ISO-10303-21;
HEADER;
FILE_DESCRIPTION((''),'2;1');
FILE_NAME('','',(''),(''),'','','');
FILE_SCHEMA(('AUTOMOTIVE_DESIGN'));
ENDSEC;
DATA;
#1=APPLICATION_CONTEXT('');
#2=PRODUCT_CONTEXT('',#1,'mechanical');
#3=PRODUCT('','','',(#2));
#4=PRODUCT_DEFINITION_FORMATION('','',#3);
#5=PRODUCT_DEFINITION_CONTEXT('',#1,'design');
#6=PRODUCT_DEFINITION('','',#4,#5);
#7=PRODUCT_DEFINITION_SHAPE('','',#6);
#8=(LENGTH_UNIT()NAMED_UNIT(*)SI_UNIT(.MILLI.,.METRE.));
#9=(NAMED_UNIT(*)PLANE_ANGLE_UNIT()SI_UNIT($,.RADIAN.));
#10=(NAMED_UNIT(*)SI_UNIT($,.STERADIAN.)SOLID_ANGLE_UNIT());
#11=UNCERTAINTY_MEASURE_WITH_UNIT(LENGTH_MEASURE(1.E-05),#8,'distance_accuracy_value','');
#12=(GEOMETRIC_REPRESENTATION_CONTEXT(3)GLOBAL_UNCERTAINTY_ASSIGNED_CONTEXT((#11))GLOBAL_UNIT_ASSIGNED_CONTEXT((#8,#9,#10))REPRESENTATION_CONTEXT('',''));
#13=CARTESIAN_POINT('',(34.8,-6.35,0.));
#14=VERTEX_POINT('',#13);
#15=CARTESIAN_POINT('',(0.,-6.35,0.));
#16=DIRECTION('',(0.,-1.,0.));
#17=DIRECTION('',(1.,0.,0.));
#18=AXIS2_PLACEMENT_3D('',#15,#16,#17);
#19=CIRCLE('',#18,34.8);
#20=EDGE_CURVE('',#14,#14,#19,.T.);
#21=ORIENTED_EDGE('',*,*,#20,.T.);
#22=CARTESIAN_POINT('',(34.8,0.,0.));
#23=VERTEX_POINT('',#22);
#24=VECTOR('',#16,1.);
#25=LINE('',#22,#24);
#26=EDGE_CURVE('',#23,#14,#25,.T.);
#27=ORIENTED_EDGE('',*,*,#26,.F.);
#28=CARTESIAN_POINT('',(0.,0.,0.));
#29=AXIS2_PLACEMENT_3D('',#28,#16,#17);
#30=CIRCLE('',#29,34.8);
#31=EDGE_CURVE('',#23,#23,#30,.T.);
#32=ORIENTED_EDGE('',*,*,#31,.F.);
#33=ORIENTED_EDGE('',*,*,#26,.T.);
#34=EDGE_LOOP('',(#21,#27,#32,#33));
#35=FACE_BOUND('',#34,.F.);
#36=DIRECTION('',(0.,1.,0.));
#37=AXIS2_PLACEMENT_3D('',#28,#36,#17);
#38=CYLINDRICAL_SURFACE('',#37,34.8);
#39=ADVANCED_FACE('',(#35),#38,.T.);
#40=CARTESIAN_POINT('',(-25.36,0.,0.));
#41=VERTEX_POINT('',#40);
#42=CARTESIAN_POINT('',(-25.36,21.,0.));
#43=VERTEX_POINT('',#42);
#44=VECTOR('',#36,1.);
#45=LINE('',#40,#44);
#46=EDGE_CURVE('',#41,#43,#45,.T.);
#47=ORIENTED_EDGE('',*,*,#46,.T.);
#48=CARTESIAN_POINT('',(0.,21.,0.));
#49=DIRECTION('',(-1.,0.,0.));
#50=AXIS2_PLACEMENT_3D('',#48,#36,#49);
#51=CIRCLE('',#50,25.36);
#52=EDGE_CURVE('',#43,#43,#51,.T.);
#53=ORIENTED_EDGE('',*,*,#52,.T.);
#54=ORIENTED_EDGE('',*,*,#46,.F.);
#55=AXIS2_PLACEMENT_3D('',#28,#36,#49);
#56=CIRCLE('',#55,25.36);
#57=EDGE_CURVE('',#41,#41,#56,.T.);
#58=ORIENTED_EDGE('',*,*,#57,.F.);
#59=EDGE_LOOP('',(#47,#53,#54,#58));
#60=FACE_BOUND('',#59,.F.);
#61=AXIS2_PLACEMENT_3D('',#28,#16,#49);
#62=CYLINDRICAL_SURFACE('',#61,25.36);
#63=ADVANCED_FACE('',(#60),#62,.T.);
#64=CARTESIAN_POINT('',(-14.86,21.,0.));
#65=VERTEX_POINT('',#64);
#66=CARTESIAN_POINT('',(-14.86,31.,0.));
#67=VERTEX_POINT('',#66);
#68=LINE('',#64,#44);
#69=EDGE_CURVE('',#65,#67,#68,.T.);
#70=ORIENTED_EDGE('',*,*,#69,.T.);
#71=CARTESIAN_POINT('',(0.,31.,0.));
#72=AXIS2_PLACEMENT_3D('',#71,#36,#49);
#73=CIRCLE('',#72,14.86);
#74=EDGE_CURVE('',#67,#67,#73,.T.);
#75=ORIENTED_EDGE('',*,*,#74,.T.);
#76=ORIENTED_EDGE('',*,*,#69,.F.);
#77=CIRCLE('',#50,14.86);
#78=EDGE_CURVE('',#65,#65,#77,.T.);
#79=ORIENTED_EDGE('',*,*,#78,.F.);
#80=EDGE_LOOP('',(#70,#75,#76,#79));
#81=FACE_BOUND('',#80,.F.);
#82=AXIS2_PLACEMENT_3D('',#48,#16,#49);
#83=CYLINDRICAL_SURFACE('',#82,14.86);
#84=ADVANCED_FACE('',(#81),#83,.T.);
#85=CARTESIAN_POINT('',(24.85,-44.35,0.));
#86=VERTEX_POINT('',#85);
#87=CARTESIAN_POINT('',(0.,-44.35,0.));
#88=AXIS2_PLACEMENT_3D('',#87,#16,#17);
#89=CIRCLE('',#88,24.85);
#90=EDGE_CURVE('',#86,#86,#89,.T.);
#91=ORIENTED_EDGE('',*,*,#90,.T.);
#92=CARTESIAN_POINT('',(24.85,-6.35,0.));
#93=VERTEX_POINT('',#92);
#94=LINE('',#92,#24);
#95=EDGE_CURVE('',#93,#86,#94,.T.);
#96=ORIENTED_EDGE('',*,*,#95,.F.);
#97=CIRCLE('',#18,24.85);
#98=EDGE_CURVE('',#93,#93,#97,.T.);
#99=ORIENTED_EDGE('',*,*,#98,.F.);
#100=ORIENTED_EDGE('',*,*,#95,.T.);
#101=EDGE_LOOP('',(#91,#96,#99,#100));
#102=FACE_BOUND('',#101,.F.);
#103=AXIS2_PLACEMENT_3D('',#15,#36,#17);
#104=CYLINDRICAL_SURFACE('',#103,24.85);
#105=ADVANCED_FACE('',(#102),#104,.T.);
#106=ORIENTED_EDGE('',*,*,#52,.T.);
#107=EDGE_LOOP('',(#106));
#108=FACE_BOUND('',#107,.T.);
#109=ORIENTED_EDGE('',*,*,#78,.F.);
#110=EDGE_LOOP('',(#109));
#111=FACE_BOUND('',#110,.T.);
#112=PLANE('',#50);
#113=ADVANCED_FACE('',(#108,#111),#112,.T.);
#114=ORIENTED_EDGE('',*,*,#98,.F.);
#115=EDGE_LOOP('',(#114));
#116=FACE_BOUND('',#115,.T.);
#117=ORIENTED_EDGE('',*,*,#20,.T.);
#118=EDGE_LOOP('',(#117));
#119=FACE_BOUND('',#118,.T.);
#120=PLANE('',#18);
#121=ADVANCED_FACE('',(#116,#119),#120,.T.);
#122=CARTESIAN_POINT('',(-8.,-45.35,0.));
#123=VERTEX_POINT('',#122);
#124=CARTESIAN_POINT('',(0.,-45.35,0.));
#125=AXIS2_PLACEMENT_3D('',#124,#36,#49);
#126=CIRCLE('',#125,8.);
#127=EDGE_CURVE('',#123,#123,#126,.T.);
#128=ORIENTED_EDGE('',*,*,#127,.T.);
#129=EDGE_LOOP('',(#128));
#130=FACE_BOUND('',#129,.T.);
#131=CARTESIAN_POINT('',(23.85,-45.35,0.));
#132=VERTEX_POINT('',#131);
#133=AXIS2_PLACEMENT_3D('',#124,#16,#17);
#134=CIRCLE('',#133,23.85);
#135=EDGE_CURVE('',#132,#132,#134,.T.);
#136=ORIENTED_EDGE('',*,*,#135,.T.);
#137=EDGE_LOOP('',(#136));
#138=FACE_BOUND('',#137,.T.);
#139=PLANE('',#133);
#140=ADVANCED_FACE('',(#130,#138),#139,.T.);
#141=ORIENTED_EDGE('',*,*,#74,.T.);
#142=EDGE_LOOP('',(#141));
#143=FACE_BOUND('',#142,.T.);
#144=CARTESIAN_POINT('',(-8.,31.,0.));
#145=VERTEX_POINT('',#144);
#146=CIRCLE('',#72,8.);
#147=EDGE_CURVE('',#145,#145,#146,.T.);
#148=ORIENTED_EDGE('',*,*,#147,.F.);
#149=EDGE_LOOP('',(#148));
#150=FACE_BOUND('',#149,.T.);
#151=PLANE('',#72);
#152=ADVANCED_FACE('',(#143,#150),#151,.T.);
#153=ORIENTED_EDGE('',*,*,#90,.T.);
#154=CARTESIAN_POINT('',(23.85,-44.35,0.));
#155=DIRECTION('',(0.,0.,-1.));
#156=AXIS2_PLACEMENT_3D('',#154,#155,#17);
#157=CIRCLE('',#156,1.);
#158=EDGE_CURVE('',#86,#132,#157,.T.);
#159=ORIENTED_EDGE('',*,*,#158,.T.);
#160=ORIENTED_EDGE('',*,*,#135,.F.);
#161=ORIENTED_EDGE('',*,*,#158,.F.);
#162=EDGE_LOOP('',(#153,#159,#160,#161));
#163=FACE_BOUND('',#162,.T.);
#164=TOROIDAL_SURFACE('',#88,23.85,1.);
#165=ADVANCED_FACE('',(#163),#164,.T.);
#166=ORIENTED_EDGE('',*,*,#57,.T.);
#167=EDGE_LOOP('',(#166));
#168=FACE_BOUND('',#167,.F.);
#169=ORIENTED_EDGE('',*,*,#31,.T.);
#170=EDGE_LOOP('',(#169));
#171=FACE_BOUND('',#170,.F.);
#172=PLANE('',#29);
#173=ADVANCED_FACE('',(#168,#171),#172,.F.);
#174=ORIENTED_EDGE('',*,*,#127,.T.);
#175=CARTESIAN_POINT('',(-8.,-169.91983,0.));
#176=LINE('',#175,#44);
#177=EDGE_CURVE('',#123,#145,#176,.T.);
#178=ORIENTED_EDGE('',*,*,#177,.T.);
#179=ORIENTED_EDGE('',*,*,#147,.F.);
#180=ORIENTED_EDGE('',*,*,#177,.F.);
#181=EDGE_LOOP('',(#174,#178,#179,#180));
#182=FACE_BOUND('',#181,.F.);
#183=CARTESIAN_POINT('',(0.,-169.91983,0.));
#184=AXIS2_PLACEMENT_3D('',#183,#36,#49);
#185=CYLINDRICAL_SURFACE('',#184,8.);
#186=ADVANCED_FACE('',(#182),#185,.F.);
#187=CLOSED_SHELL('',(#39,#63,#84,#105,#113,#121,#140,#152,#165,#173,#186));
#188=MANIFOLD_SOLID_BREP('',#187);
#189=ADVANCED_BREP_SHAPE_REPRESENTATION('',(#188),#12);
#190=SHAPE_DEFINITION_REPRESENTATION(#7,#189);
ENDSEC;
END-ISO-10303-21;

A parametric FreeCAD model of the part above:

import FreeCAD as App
import Part
import Sketcher
Q = App.Units.Quantity


def edges_at(feature, points):
    """Names of the edges that pass closest to the given points."""
    edges = feature.Shape.Edges
    near = lambda p: min(range(len(edges)), key=lambda i: edges[i].distToShape(Part.Vertex(*p))[0])
    return sorted({f"Edge{near(p) + 1}" for p in points})

doc = App.newDocument("Part")
body = doc.addObject("PartDesign::Body", "Body")

# Sketch on XZ plane
sketch1 = body.newObject("Sketcher::SketchObject", "Sketch")
sketch1.AttachmentSupport = (doc.getObject("XZ_Plane"), [""])
sketch1.MapMode = "FlatFace"
sketch1.addGeometry(Part.Circle(App.Vector(0, 0, 0), App.Vector(0, 0, 1), 35), False)
sketch1.addConstraint([
    Sketcher.Constraint("Coincident", 0, 3, -1, 1),
    Sketcher.Constraint("Diameter", 0, Q("69.6 mm")),
])
pad1 = body.newObject("PartDesign::Pad", "Pad")
pad1.Profile = sketch1
pad1.Length = 6.35

# Sketch on XZ plane
sketch2 = body.newObject("Sketcher::SketchObject", "Sketch001")
sketch2.AttachmentSupport = (doc.getObject("XZ_Plane"), [""])
sketch2.MapMode = "FlatFace"
sketch2.AttachmentOffset = App.Placement(App.Vector(0, 0, 6.35), App.Rotation())
sketch2.addGeometry(Part.Circle(App.Vector(0, 0, 0), App.Vector(0, 0, 1), 25), False)
sketch2.addConstraint([
    Sketcher.Constraint("Coincident", 0, 3, -1, 1),
    Sketcher.Constraint("Diameter", 0, Q("49.7 mm")),
])
pad2 = body.newObject("PartDesign::Pad", "Pad001")
pad2.Profile = sketch2
pad2.Length = 39
doc.recompute()

fillet = body.newObject("PartDesign::Fillet", "Fillet")
fillet.Base = (pad2, edges_at(pad2, [(-24.85, -45.35, 0)]))
fillet.Radius = 1

# Sketch on XZ plane
sketch3 = body.newObject("Sketcher::SketchObject", "Sketch002")
sketch3.AttachmentSupport = (doc.getObject("XZ_Plane"), [""])
sketch3.MapMode = "FlatFace"
sketch3.addGeometry(Part.Circle(App.Vector(0, 0, 0), App.Vector(0, 0, 1), 25), False)
sketch3.addConstraint([
    Sketcher.Constraint("Coincident", 0, 3, -1, 1),
    Sketcher.Constraint("Diameter", 0, Q("50.72 mm")),
])
pad3 = body.newObject("PartDesign::Pad", "Pad002")
pad3.Profile = sketch3
pad3.Length = 21
pad3.Reversed = True

# Sketch on XZ plane
sketch4 = body.newObject("Sketcher::SketchObject", "Sketch003")
sketch4.AttachmentSupport = (doc.getObject("XZ_Plane"), [""])
sketch4.MapMode = "FlatFace"
sketch4.AttachmentOffset = App.Placement(App.Vector(0, 0, -21), App.Rotation())
sketch4.addGeometry(Part.Circle(App.Vector(0, 0, 0), App.Vector(0, 0, 1), 15), False)
sketch4.addConstraint([
    Sketcher.Constraint("Coincident", 0, 3, -1, 1),
    Sketcher.Constraint("Diameter", 0, Q("29.72 mm")),
])
pad4 = body.newObject("PartDesign::Pad", "Pad003")
pad4.Profile = sketch4
pad4.Length = 10
pad4.Reversed = True

# Sketch on XZ plane
sketch5 = body.newObject("Sketcher::SketchObject", "Sketch004")
sketch5.AttachmentSupport = (doc.getObject("XZ_Plane"), [""])
sketch5.MapMode = "FlatFace"
sketch5.AttachmentOffset = App.Placement(App.Vector(0, 0, 45.35), App.Rotation())
sketch5.addGeometry(Part.Circle(App.Vector(0, 0, 0), App.Vector(0, 0, 1), 8), False)
sketch5.addConstraint([
    Sketcher.Constraint("Coincident", 0, 3, -1, 1),
    Sketcher.Constraint("Diameter", 0, Q("16 mm")),
])
doc.recompute()
hole = body.newObject("PartDesign::Hole", "Hole")
hole.Profile = sketch5
hole.ThreadType = "None"
hole.Diameter = 16
hole.DepthType = "ThroughAll"

doc.recompute()
